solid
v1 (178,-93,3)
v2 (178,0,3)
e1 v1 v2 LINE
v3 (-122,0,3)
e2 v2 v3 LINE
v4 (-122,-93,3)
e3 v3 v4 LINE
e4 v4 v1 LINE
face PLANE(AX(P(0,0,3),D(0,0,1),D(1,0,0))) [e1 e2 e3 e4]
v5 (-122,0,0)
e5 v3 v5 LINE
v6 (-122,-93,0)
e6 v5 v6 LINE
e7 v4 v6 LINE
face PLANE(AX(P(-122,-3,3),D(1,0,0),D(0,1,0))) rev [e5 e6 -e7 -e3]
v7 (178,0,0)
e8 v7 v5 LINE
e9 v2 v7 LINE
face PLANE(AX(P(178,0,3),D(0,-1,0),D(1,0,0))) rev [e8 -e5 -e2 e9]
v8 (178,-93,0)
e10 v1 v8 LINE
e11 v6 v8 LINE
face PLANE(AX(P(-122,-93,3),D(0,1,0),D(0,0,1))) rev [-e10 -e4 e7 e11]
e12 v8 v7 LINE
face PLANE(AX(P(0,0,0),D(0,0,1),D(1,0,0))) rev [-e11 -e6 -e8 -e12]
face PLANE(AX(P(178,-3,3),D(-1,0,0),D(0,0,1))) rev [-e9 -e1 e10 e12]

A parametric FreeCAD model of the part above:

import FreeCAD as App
import Part
import Sketcher
Q = App.Units.Quantity


def add_polygon(sketch, points):
    """Adds a closed chain of lines whose ends are joined by coincident constraints."""
    first, n = sketch.GeometryCount, len(points)
    for a, b in zip(points, points[1:] + points[:1]):
        sketch.addGeometry(Part.LineSegment(App.Vector(*a, 0), App.Vector(*b, 0)), False)
    for i in range(n):
        sketch.addConstraint(Sketcher.Constraint("Coincident", first + i, 2, first + (i + 1) % n, 1))

doc = App.newDocument("Part")
body = doc.addObject("PartDesign::Body", "Body")

# Sketch on XY plane
sketch1 = doc.addObject("Sketcher::SketchObject", "Sketch")
body.addObject(sketch1)
sketch1.AttachmentSupport = (doc.XY_Plane, [""])
sketch1.MapMode = "FlatFace"
add_polygon(sketch1, [(-122, 0), (-122, -93), (178, -93), (178, 0)])  # lines 0-3
sketch1.addConstraint(Sketcher.Constraint("Vertical", 0))
sketch1.addConstraint(Sketcher.Constraint("Horizontal", 1))
sketch1.addConstraint(Sketcher.Constraint("Vertical", 2))
sketch1.addConstraint(Sketcher.Constraint("Horizontal", 3))
sketch1.addConstraint(Sketcher.Constraint("PointOnObject", 2, 2, -1))
sketch1.addConstraint(Sketcher.Constraint("DistanceX", 1, 1, 1, 2, Q("300 mm")))
sketch1.addConstraint(Sketcher.Constraint("DistanceY", 0, 2, 0, 1, Q("93 mm")))
sketch1.addConstraint(Sketcher.Constraint("DistanceX", 0, 2, -1, 1, Q("122 mm")))
pad1 = doc.addObject("PartDesign::Pad", "Pad")
body.addObject(pad1)
pad1.Profile = sketch1
pad1.Length = 3

doc.recompute()
